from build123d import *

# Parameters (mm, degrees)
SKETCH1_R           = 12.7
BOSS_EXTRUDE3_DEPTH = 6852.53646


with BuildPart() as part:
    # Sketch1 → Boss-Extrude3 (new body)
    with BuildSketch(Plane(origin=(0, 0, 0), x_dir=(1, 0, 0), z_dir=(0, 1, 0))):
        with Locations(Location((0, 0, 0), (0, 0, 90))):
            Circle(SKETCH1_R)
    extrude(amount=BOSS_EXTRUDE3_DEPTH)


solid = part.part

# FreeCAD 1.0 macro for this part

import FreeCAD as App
import Part
import Sketcher
from FreeCAD import Vector
Q = App.Units.Quantity

doc = App.newDocument("Part")
body = doc.addObject("PartDesign::Body", "Body")

sketch1 = doc.addObject("Sketcher::SketchObject", "Sketch")
body.addObject(sketch1)
sketch1.AttachmentSupport = (doc.XZ_Plane, [""])
sketch1.MapMode = "FlatFace"
sketch1.addGeometry(Part.Circle(Vector(0, 0, 0), Vector(0, 0, 1), 12.7), False)
sketch1.addConstraint(Sketcher.Constraint("Coincident", 0, 3, -1, 1))
sketch1.addConstraint(Sketcher.Constraint("Diameter", 0, Q("1 in")))
pad1 = doc.addObject("PartDesign::Pad", "Pad")
body.addObject(pad1)
pad1.Profile = sketch1
pad1.Length = Q("269.7849 in")
pad1.Reversed = True

doc.recompute()
